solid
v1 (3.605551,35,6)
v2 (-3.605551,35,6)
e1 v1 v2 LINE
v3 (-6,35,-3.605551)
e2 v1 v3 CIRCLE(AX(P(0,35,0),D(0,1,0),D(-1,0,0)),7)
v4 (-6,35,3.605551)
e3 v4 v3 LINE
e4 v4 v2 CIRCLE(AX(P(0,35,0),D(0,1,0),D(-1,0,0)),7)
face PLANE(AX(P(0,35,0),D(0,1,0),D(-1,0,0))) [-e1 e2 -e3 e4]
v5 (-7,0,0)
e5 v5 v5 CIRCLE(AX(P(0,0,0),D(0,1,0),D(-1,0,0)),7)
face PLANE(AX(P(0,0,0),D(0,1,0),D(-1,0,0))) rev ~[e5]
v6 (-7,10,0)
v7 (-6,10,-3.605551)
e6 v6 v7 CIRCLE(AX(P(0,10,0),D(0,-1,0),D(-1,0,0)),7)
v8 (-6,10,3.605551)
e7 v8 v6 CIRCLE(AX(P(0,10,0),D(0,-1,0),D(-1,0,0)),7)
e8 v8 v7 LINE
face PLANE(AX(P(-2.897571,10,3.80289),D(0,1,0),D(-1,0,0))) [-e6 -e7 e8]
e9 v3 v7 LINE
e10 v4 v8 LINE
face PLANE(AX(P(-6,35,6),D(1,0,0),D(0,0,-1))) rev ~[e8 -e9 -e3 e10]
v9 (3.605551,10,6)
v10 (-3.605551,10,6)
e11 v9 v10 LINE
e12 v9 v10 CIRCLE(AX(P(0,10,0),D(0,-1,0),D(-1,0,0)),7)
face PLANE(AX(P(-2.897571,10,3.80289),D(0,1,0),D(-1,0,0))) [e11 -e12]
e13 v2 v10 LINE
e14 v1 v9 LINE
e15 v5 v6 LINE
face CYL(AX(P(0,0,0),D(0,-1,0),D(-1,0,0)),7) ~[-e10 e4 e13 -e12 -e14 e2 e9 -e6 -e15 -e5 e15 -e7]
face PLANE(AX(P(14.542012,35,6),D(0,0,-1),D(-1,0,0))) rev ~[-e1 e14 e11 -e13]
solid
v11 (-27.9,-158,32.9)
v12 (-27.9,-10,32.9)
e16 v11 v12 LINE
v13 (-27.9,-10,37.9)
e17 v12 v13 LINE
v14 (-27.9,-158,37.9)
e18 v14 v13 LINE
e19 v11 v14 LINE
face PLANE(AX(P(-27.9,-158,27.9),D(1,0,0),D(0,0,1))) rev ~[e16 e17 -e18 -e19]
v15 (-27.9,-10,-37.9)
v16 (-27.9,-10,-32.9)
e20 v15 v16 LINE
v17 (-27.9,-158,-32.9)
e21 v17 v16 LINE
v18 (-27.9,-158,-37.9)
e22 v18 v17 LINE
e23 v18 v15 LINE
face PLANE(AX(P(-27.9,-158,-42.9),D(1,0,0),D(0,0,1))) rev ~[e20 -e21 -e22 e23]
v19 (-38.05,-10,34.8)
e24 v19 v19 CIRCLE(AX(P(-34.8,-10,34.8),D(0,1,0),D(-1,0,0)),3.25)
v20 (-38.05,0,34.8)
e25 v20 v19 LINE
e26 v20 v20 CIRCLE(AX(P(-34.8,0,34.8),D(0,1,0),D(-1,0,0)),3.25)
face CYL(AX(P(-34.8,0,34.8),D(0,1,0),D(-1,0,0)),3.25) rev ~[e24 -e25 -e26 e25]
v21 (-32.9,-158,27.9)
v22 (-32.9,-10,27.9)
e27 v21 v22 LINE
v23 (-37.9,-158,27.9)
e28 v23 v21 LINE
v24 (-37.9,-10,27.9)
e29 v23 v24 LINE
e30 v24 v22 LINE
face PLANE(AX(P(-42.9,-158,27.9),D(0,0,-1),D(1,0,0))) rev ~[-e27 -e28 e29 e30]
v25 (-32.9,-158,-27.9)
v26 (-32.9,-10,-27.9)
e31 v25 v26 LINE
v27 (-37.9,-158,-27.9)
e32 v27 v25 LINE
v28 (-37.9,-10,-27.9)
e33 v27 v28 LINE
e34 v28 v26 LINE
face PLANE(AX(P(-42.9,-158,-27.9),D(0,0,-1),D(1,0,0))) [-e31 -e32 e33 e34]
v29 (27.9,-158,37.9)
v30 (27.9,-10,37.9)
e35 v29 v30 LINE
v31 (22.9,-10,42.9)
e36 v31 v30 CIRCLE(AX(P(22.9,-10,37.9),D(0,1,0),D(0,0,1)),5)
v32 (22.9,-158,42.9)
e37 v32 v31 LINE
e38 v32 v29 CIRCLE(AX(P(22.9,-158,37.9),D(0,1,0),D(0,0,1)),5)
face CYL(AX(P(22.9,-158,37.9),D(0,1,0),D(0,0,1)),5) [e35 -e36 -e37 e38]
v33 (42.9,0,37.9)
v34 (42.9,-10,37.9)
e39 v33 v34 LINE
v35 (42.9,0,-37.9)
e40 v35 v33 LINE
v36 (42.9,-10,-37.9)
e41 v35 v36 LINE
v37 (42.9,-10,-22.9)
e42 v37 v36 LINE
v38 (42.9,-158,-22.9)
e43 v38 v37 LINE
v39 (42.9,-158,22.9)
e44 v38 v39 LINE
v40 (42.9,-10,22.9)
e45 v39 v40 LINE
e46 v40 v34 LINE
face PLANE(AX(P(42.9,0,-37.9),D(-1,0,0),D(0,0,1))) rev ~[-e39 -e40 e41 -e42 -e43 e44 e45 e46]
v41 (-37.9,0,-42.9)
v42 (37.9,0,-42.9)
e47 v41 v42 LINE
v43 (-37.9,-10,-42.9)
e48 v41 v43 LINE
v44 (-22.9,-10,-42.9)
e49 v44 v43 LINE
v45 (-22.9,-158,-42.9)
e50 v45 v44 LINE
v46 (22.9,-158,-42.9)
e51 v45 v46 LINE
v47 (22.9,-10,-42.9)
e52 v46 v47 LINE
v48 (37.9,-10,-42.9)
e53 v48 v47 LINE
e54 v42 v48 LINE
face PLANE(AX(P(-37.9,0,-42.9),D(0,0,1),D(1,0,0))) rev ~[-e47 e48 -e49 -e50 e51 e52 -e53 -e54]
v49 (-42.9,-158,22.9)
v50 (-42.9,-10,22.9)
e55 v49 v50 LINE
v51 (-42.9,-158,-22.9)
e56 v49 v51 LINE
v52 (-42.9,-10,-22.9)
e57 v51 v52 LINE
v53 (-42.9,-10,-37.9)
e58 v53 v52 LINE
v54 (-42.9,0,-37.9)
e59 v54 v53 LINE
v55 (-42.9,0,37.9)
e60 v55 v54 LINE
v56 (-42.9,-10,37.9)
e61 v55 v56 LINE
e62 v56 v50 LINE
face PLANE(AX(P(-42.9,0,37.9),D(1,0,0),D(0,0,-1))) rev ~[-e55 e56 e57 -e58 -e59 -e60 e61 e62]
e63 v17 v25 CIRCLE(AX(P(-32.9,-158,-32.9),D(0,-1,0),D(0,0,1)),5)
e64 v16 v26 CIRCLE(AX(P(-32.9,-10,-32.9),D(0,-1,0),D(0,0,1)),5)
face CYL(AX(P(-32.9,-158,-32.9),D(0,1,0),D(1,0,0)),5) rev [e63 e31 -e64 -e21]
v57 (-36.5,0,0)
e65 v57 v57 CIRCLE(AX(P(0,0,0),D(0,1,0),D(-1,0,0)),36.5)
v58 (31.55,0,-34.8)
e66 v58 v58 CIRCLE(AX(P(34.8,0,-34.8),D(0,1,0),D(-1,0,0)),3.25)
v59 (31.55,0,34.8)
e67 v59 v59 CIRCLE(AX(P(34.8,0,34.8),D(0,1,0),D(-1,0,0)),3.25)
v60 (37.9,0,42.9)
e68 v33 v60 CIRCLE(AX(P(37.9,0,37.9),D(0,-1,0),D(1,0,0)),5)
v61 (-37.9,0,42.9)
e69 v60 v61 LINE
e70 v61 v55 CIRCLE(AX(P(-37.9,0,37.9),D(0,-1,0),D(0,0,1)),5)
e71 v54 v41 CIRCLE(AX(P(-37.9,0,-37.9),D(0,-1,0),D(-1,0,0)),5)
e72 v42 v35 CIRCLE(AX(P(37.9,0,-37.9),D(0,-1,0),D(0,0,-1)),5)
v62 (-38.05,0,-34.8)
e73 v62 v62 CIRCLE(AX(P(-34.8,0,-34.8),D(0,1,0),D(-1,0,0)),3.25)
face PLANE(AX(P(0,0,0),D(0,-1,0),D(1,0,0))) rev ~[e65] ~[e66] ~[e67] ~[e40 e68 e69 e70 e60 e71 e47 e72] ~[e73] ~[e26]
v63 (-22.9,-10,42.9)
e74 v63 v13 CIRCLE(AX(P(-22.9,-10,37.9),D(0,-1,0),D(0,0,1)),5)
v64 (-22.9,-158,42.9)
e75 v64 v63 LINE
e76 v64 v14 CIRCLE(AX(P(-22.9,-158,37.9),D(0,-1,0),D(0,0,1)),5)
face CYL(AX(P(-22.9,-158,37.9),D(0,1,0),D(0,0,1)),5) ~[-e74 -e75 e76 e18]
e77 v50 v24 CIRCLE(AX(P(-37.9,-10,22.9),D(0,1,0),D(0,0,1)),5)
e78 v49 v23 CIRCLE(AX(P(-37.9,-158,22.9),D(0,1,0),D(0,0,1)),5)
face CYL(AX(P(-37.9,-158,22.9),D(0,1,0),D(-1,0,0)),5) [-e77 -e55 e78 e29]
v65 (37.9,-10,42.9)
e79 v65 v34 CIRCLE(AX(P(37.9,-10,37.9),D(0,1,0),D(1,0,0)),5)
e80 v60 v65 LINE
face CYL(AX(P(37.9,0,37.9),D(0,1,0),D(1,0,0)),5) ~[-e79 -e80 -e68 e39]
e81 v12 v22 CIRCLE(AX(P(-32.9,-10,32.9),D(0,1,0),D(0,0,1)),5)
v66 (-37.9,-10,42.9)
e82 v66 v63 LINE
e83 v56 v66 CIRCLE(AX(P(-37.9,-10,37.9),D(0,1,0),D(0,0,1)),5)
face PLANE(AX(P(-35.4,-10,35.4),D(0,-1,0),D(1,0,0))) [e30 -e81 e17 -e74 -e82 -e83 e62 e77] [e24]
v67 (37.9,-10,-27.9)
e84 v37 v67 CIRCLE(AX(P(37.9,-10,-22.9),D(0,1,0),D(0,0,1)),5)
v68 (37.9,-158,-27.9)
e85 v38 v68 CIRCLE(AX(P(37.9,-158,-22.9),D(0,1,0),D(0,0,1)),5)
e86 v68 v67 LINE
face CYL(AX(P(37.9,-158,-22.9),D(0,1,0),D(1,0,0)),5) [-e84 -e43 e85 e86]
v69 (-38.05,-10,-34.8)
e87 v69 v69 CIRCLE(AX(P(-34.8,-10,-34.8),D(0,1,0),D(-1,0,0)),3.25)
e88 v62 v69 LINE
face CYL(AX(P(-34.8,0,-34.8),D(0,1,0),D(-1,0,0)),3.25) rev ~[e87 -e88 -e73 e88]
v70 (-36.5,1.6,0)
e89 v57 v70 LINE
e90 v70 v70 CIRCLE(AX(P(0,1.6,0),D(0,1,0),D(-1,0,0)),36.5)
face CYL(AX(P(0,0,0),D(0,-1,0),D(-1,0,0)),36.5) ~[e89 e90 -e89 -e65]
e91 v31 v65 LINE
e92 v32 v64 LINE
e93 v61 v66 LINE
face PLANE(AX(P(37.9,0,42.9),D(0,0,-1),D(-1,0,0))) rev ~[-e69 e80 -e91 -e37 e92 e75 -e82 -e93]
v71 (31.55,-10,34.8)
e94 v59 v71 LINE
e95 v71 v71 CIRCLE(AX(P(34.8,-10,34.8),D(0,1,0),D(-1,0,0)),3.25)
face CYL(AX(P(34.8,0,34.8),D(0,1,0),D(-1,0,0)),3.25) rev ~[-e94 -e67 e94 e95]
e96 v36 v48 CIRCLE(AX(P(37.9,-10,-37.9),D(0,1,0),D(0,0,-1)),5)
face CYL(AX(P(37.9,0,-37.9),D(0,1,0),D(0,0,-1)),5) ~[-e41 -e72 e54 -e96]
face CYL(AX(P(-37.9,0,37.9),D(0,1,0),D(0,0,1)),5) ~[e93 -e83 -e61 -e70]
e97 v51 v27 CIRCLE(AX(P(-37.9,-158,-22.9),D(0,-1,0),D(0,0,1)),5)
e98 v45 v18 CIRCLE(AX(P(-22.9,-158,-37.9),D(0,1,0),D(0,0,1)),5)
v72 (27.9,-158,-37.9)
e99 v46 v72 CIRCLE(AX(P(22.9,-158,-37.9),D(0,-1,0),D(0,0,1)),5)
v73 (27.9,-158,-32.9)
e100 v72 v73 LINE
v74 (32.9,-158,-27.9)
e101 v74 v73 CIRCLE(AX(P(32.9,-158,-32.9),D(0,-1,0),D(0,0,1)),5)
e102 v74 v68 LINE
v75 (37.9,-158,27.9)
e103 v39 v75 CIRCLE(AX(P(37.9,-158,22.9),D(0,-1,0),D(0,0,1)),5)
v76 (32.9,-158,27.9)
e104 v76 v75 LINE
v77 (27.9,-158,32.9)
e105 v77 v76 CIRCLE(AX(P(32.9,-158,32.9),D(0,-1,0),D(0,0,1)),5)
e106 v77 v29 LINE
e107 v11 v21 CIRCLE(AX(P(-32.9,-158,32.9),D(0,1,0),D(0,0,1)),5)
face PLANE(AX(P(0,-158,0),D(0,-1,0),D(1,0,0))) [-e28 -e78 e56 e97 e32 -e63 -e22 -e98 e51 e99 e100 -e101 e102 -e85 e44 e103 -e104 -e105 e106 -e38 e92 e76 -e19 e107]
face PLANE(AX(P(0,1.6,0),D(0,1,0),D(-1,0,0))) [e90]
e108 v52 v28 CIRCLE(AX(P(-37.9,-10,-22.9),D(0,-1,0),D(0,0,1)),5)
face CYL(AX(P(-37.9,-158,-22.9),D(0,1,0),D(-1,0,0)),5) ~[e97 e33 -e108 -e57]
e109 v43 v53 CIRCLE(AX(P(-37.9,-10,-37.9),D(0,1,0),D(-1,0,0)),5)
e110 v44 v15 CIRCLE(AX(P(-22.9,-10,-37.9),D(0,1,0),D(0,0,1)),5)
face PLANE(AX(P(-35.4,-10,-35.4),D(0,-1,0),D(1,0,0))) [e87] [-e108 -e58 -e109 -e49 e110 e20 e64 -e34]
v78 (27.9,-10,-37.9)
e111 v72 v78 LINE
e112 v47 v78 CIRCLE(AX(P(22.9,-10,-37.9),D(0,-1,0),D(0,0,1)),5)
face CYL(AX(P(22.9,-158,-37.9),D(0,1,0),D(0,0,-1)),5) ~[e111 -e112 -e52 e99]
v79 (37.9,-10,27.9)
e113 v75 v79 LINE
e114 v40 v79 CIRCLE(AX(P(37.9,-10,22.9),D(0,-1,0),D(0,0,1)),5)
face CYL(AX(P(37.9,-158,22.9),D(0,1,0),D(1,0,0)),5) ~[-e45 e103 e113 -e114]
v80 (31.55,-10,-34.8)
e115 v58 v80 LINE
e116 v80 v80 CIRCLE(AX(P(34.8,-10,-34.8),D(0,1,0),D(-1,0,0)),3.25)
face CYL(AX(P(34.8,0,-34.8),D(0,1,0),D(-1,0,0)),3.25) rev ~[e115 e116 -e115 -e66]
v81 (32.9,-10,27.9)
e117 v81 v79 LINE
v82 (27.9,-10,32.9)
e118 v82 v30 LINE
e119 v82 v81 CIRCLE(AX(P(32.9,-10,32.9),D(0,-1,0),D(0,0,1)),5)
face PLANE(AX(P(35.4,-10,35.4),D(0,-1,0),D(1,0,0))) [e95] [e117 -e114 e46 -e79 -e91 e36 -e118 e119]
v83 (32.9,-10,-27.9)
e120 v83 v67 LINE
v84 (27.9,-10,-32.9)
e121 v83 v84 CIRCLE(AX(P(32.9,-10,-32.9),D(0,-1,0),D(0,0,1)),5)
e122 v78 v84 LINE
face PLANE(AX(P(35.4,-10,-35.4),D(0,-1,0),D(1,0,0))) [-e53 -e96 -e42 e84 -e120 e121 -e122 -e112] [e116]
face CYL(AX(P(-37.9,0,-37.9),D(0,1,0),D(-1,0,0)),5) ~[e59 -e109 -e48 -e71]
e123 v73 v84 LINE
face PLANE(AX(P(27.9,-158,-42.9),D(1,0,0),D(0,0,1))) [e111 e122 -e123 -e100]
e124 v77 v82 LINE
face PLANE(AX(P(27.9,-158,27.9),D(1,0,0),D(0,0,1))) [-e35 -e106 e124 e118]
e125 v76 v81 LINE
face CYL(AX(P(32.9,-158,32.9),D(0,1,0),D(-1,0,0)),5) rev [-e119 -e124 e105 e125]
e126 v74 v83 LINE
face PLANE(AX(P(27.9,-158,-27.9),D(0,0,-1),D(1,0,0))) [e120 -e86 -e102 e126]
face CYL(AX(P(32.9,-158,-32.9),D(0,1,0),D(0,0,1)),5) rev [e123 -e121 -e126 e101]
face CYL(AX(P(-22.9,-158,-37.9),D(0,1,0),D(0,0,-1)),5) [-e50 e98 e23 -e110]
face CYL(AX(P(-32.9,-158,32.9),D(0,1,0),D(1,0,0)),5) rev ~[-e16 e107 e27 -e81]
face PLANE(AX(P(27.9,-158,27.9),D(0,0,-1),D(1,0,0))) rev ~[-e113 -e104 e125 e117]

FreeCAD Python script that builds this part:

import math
import FreeCAD as App
import Part
import Sketcher
from FreeCAD import Vector


def edges_at(feature, points):
    """Names of the edges that pass closest to the given points."""
    edges = feature.Shape.Edges
    near = lambda p: min(range(len(edges)), key=lambda i: edges[i].distToShape(Part.Vertex(*p))[0])
    return sorted({f"Edge{near(p) + 1}" for p in points})


def add_polygon(sketch, points):
    """Adds a closed chain of lines whose ends are joined by coincident constraints."""
    first, n = sketch.GeometryCount, len(points)
    for a, b in zip(points, points[1:] + points[:1]):
        sketch.addGeometry(Part.LineSegment(App.Vector(*a, 0), App.Vector(*b, 0)), False)
    for i in range(n):
        sketch.addConstraint(Sketcher.Constraint("Coincident", first + i, 2, first + (i + 1) % n, 1))

doc = App.newDocument("Part")
body = doc.addObject("PartDesign::Body", "Body")

sketch1 = body.newObject("Sketcher::SketchObject", "Sketch")
sketch1.AttachmentSupport = (doc.getObject("XZ_Plane"), [""])
sketch1.MapMode = "FlatFace"
sketch1.addGeometry([
    Part.LineSegment(Vector(38, 43, 0), Vector(-38, 43, 0)),
    Part.ArcOfCircle(Part.Circle(Vector(-38, 38, 0), Vector(0, 0, 1), 5), math.radians(90), math.radians(180)),
    Part.LineSegment(Vector(-43, 38, 0), Vector(-43, -38, 0)),
    Part.ArcOfCircle(Part.Circle(Vector(-38, -38, 0), Vector(0, 0, 1), 5), math.radians(180), math.radians(270)),
    Part.LineSegment(Vector(-38, -43, 0), Vector(38, -43, 0)),
    Part.ArcOfCircle(Part.Circle(Vector(38, -38, 0), Vector(0, 0, 1), 5), math.radians(-90), math.radians(0)),
    Part.LineSegment(Vector(43, -38, 0), Vector(43, 38, 0)),
    Part.ArcOfCircle(Part.Circle(Vector(38, 38, 0), Vector(0, 0, 1), 5), math.radians(0), math.radians(90)),
], False)
sketch1.addConstraint([
    Sketcher.Constraint("Tangent", 0, 2, 1, 1),
    Sketcher.Constraint("Tangent", 1, 2, 2, 1),
    Sketcher.Constraint("Tangent", 2, 2, 3, 1),
    Sketcher.Constraint("Tangent", 3, 2, 4, 1),
    Sketcher.Constraint("Tangent", 4, 2, 5, 1),
    Sketcher.Constraint("Tangent", 5, 2, 6, 1),
    Sketcher.Constraint("Tangent", 6, 2, 7, 1),
    Sketcher.Constraint("Tangent", 7, 2, 0, 1),
    Sketcher.Constraint("Horizontal", 0),
    Sketcher.Constraint("Vertical", 2),
    Sketcher.Constraint("Horizontal", 4),
    Sketcher.Constraint("Vertical", 6),
    Sketcher.Constraint("Equal", 1, 3),
    Sketcher.Constraint("Equal", 3, 5),
    Sketcher.Constraint("Equal", 5, 7),
    Sketcher.Constraint("Symmetric", 1, 3, 5, 3, -1, 1),
    Sketcher.Constraint("Equal", 4, 2),
    Sketcher.Constraint("Radius", 1, 5.0),
    Sketcher.Constraint("DistanceX", 0, 2, 0, 1, 75.8),
])
pad1 = body.newObject("PartDesign::Pad", "Pad")
pad1.Profile = sketch1
pad1.Length = 158

sketch2 = body.newObject("Sketcher::SketchObject", "Sketch001")
sketch2.AttachmentSupport = (doc.getObject("XZ_Plane"), [""])
sketch2.MapMode = "FlatFace"
sketch2.AttachmentOffset = App.Placement(Vector(0, 0, 158), App.Rotation())
add_polygon(sketch2, [(28, 43), (28, 28), (43, 28), (43, 43)])
add_polygon(sketch2, [(-43, 43), (-43, 28), (-28, 28), (-28, 43)])
add_polygon(sketch2, [(-43, -28), (-43, -43), (-28, -43), (-28, -28)])
add_polygon(sketch2, [(28, -28), (28, -43), (43, -43), (43, -28)])
sketch2.addConstraint([
    Sketcher.Constraint("Vertical", 0),
    Sketcher.Constraint("Horizontal", 1),
    Sketcher.Constraint("Vertical", 2),
    Sketcher.Constraint("Horizontal", 3),
    Sketcher.Constraint("Vertical", 4),
    Sketcher.Constraint("Horizontal", 5),
    Sketcher.Constraint("Vertical", 6),
    Sketcher.Constraint("Horizontal", 7),
    Sketcher.Constraint("Vertical", 8),
    Sketcher.Constraint("Horizontal", 9),
    Sketcher.Constraint("Vertical", 10),
    Sketcher.Constraint("Horizontal", 11),
    Sketcher.Constraint("Vertical", 12),
    Sketcher.Constraint("Horizontal", 13),
    Sketcher.Constraint("Vertical", 14),
    Sketcher.Constraint("Horizontal", 15),
    Sketcher.Constraint("Symmetric", 2, 2, 8, 2, -1, 1),
    Sketcher.Constraint("Symmetric", 0, 2, 10, 2, -1, 1),
    Sketcher.Constraint("Symmetric", 6, 2, 12, 2, -1, 1),
    Sketcher.Constraint("Symmetric", 4, 2, 14, 2, -1, 1),
    Sketcher.Constraint("Symmetric", 1, 2, 4, 2, -2),
    Sketcher.Constraint("Symmetric", 3, 2, 6, 2, -2),
    Sketcher.Constraint("Equal", 15, 0),
    Sketcher.Constraint("DistanceX", 1, 1, 1, 2, 15.0),
    Sketcher.Constraint("DistanceX", -1, 1, 0, 2, 27.9),
    Sketcher.Constraint("DistanceY", -1, 1, 0, 2, 27.9),
])
pocket1 = body.newObject("PartDesign::Pocket", "Pocket")
pocket1.Profile = sketch2
pocket1.Length = 148

sketch3 = body.newObject("Sketcher::SketchObject", "Sketch002")
sketch3.AttachmentSupport = (doc.getObject("XZ_Plane"), [""])
sketch3.MapMode = "FlatFace"
sketch3.addGeometry([
    Part.Circle(Vector(-34.8, 34.8, 0), Vector(0, 0, 1), 3.2),
    Part.Circle(Vector(34.8, 34.8, 0), Vector(0, 0, 1), 3.2),
    Part.Circle(Vector(-34.8, -34.8, 0), Vector(0, 0, 1), 3.2),
    Part.Circle(Vector(34.8, -34.8, 0), Vector(0, 0, 1), 3.2),
], False)
sketch3.addConstraint([
    Sketcher.Constraint("Equal", 0, 1),
    Sketcher.Constraint("Equal", 1, 2),
    Sketcher.Constraint("Equal", 2, 3),
    Sketcher.Constraint("Symmetric", 1, 3, 2, 3, -1, 1),
    Sketcher.Constraint("Symmetric", 0, 3, 3, 3, -1, 1),
    Sketcher.Constraint("Symmetric", 0, 3, 1, 3, -2),
    Sketcher.Constraint("Diameter", 0, 6.5),
    Sketcher.Constraint("DistanceX", 0, 3, -1, 1, 34.8),
    Sketcher.Constraint("DistanceY", -1, 1, 0, 3, 34.8),
])
pocket2 = body.newObject("PartDesign::Pocket", "Pocket001")
pocket2.Profile = sketch3
pocket2.Type = "ThroughAll"
pocket2.Reversed = True
doc.recompute()

fillet = body.newObject("PartDesign::Fillet", "Fillet")
fillet.Base = (pocket2, edges_at(pocket2, [
    (-42.9, -84, 27.9),
    (-42.9, -84, -27.9),
    (-27.9, -84, -27.9),
    (-27.9, -84, -42.9),
    (27.9, -84, -42.9),
    (-27.9, -84, 42.9),
    (27.9, -84, -27.9),
    (42.9, -84, -27.9),
    (42.9, -84, 27.9),
    (27.9, -84, 42.9),
    (27.9, -84, 27.9),
    (-27.9, -84, 27.9),
]))
fillet.Radius = 5

sketch4 = body.newObject("Sketcher::SketchObject", "Sketch003")
sketch4.AttachmentSupport = (doc.getObject("XZ_Plane"), [""])
sketch4.MapMode = "FlatFace"
sketch4.addGeometry(Part.Circle(Vector(0, 0, 0), Vector(0, 0, 1), 36), False)
sketch4.addConstraint([
    Sketcher.Constraint("Coincident", 0, 3, -1, 1),
    Sketcher.Constraint("Diameter", 0, 73.0),
])
pad2 = body.newObject("PartDesign::Pad", "Pad001")
pad2.Profile = sketch4
pad2.Length = 1.6
pad2.Reversed = True
body2 = doc.addObject("PartDesign::Body", "Body001")

sketch5 = body2.newObject("Sketcher::SketchObject", "Sketch004")
sketch5.AttachmentSupport = (doc.getObject("XZ_Plane001"), [""])
sketch5.MapMode = "FlatFace"
sketch5.addGeometry(Part.Circle(Vector(0, 0, 0), Vector(0, 0, 1), 7), False)
sketch5.addConstraint([
    Sketcher.Constraint("Coincident", 0, 3, -1, 1),
    Sketcher.Constraint("Diameter", 0, 14.0),
])
pad3 = body2.newObject("PartDesign::Pad", "Pad002")
pad3.Profile = sketch5
pad3.Length = 35
pad3.Reversed = True

sketch6 = body2.newObject("Sketcher::SketchObject", "Sketch005")
sketch6.AttachmentSupport = (doc.getObject("XZ_Plane001"), [""])
sketch6.MapMode = "FlatFace"
sketch6.AttachmentOffset = App.Placement(Vector(0, 0, -35), App.Rotation())
add_polygon(sketch6, [(14.542012, 12.758381), (14.542012, 6), (-6, 6), (-6, -12.048997), (-13.198324, -12.465084), (-13.198324, 12.758381)])
sketch6.addConstraint([
    Sketcher.Constraint("Vertical", 0),
    Sketcher.Constraint("Horizontal", 1),
    Sketcher.Constraint("Vertical", 2),
    Sketcher.Constraint("Vertical", 4),
    Sketcher.Constraint("Horizontal", 5),
    Sketcher.Constraint("DistanceY", -1, 1, 0, 2, 6.0),
    Sketcher.Constraint("DistanceX", 1, 2, -1, 1, 6.0),
    Sketcher.Constraint("DistanceY", 0, 2, 0, 1, 6.758381),
    Sketcher.Constraint("Distance", 3, 7.210339),
    Sketcher.Constraint("DistanceX", 1, 2, 1, 1, 20.542012),
    Sketcher.Constraint("DistanceX", 5, 1, 5, 2, 27.740336),
    Sketcher.Constraint("DistanceY", 2, 2, 2, 1, 18.048997),
])
pocket3 = body2.newObject("PartDesign::Pocket", "Pocket002")
pocket3.Profile = sketch6
pocket3.Length = 25
pocket3.Reversed = True

doc.recompute()
